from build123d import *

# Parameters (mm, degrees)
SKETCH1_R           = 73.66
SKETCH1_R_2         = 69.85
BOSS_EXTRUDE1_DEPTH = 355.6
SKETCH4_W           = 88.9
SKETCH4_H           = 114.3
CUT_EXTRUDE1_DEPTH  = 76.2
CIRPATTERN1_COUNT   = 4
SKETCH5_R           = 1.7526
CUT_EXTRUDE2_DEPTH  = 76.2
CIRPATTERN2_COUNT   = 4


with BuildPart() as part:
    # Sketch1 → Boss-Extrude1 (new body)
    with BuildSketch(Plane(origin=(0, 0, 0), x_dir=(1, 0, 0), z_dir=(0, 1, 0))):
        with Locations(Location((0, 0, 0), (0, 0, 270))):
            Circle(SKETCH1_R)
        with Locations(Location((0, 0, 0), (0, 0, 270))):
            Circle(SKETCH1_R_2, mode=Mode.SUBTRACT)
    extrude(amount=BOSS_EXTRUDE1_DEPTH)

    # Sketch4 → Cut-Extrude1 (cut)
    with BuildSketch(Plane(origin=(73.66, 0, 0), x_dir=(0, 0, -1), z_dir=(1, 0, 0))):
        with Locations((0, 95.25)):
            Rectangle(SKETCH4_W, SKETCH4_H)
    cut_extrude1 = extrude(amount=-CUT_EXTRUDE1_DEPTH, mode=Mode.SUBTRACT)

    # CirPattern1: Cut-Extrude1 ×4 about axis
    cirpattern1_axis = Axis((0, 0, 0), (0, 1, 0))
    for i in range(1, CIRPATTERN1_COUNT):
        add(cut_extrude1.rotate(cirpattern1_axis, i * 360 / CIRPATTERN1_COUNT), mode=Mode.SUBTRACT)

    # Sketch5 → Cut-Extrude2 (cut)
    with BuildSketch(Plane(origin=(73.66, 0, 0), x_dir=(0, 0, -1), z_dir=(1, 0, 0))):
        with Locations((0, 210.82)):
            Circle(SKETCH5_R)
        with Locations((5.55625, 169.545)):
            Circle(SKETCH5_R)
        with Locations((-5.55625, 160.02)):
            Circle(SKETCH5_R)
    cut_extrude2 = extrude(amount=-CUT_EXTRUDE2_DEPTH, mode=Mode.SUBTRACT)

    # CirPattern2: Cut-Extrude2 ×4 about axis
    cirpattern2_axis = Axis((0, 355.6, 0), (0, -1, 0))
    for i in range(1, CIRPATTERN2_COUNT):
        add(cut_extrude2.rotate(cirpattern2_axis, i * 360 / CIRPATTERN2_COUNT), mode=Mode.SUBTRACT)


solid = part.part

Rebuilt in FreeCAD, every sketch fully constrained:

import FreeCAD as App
import Part
import Sketcher
Q = App.Units.Quantity


def add_polygon(sketch, points):
    """Adds a closed chain of lines whose ends are joined by coincident constraints."""
    first, n = sketch.GeometryCount, len(points)
    for a, b in zip(points, points[1:] + points[:1]):
        sketch.addGeometry(Part.LineSegment(App.Vector(*a, 0), App.Vector(*b, 0)), False)
    for i in range(n):
        sketch.addConstraint(Sketcher.Constraint("Coincident", first + i, 2, first + (i + 1) % n, 1))

doc = App.newDocument("Part")
body = doc.addObject("PartDesign::Body", "Body")

# Sketch on XZ plane
sketch1 = body.newObject("Sketcher::SketchObject", "Sketch")
sketch1.AttachmentSupport = (doc.getObject("XZ_Plane"), [""])
sketch1.MapMode = "FlatFace"
sketch1.addGeometry(Part.Circle(App.Vector(0, 0, 0), App.Vector(0, 0, 1), 74), False)
sketch1.addGeometry(Part.Circle(App.Vector(0, 0, 0), App.Vector(0, 0, 1), 70), False)
sketch1.addConstraint(Sketcher.Constraint("Coincident", 0, 3, -1, 1))
sketch1.addConstraint(Sketcher.Constraint("Coincident", 1, 3, -1, 1))
sketch1.addConstraint(Sketcher.Constraint("Diameter", 0, Q("5.8 in")))
sketch1.addConstraint(Sketcher.Constraint("Diameter", 1, Q("5.5 in")))
pad1 = body.newObject("PartDesign::Pad", "Pad")
pad1.Profile = sketch1
pad1.Length = Q("14 in")
pad1.Reversed = True

# Sketch on YZ plane
sketch2 = body.newObject("Sketcher::SketchObject", "Sketch001")
sketch2.AttachmentSupport = (doc.getObject("YZ_Plane"), [""])
sketch2.MapMode = "FlatFace"
sketch2.AttachmentOffset = App.Placement(App.Vector(0, 0, 2.9 * 25.4), App.Rotation())
add_polygon(sketch2, [(152, 44), (38, 44), (38, -44), (152, -44)])  # lines 0-3
sketch2.addConstraint(Sketcher.Constraint("Horizontal", 0))
sketch2.addConstraint(Sketcher.Constraint("Vertical", 1))
sketch2.addConstraint(Sketcher.Constraint("Horizontal", 2))
sketch2.addConstraint(Sketcher.Constraint("Vertical", 3))
sketch2.addConstraint(Sketcher.Constraint("DistanceX", 0, 2, 0, 1, Q("4.5 in")))
sketch2.addConstraint(Sketcher.Constraint("DistanceY", 1, 2, 1, 1, Q("3.5 in")))
sketch2.addConstraint(Sketcher.Constraint("DistanceX", -1, 1, 2, 2, Q("6 in")))
sketch2.addConstraint(Sketcher.Constraint("DistanceY", -1, 1, 0, 2, Q("1.75 in")))
pocket1 = body.newObject("PartDesign::Pocket", "Pocket")
pocket1.Profile = sketch2
pocket1.Length = Q("3 in")
doc.recompute()

polarpattern = body.newObject("PartDesign::PolarPattern", "PolarPattern")
polarpattern.Originals = [pocket1]
polarpattern.Axis = (doc.getObject("Y_Axis"), [""])
polarpattern.Angle = 360
polarpattern.Occurrences = 4
body.Tip = polarpattern

# Sketch on YZ plane
sketch3 = body.newObject("Sketcher::SketchObject", "Sketch002")
sketch3.AttachmentSupport = (doc.getObject("YZ_Plane"), [""])
sketch3.MapMode = "FlatFace"
sketch3.AttachmentOffset = App.Placement(App.Vector(0, 0, 2.9 * 25.4), App.Rotation())
sketch3.addGeometry(Part.Circle(App.Vector(210.8, 0, 0), App.Vector(0, 0, 1), 1.8), False)
sketch3.addGeometry(Part.Circle(App.Vector(169.5, -5.6, 0), App.Vector(0, 0, 1), 1.8), False)
sketch3.addGeometry(Part.Circle(App.Vector(160, 5.6, 0), App.Vector(0, 0, 1), 1.8), False)
sketch3.addConstraint(Sketcher.Constraint("Equal", 0, 1))
sketch3.addConstraint(Sketcher.Constraint("Equal", 1, 2))
sketch3.addConstraint(Sketcher.Constraint("PointOnObject", 0, 3, -1))
sketch3.addConstraint(Sketcher.Constraint("Diameter", 0, Q("0.138 in")))
sketch3.addConstraint(Sketcher.Constraint("DistanceX", 2, 3, 0, 3, Q("2 in")))
sketch3.addConstraint(Sketcher.Constraint("DistanceX", -1, 1, 0, 3, Q("8.3 in")))
sketch3.addConstraint(Sketcher.Constraint("DistanceX", -1, 1, 1, 3, Q("6.675 in")))
sketch3.addConstraint(Sketcher.Constraint("DistanceY", 1, 3, -1, 1, Q("0.21875 in")))
sketch3.addConstraint(Sketcher.Constraint("DistanceY", -1, 1, 2, 3, Q("0.21875 in")))
pocket2 = body.newObject("PartDesign::Pocket", "Pocket001")
pocket2.Profile = sketch3
pocket2.Length = Q("3 in")
doc.recompute()

polarpattern2 = body.newObject("PartDesign::PolarPattern", "PolarPattern001")
polarpattern2.Originals = [pocket2]
polarpattern2.Axis = (doc.getObject("Y_Axis"), [""])
polarpattern2.Angle = 360
polarpattern2.Occurrences = 4
body.Tip = polarpattern2

doc.recompute()
